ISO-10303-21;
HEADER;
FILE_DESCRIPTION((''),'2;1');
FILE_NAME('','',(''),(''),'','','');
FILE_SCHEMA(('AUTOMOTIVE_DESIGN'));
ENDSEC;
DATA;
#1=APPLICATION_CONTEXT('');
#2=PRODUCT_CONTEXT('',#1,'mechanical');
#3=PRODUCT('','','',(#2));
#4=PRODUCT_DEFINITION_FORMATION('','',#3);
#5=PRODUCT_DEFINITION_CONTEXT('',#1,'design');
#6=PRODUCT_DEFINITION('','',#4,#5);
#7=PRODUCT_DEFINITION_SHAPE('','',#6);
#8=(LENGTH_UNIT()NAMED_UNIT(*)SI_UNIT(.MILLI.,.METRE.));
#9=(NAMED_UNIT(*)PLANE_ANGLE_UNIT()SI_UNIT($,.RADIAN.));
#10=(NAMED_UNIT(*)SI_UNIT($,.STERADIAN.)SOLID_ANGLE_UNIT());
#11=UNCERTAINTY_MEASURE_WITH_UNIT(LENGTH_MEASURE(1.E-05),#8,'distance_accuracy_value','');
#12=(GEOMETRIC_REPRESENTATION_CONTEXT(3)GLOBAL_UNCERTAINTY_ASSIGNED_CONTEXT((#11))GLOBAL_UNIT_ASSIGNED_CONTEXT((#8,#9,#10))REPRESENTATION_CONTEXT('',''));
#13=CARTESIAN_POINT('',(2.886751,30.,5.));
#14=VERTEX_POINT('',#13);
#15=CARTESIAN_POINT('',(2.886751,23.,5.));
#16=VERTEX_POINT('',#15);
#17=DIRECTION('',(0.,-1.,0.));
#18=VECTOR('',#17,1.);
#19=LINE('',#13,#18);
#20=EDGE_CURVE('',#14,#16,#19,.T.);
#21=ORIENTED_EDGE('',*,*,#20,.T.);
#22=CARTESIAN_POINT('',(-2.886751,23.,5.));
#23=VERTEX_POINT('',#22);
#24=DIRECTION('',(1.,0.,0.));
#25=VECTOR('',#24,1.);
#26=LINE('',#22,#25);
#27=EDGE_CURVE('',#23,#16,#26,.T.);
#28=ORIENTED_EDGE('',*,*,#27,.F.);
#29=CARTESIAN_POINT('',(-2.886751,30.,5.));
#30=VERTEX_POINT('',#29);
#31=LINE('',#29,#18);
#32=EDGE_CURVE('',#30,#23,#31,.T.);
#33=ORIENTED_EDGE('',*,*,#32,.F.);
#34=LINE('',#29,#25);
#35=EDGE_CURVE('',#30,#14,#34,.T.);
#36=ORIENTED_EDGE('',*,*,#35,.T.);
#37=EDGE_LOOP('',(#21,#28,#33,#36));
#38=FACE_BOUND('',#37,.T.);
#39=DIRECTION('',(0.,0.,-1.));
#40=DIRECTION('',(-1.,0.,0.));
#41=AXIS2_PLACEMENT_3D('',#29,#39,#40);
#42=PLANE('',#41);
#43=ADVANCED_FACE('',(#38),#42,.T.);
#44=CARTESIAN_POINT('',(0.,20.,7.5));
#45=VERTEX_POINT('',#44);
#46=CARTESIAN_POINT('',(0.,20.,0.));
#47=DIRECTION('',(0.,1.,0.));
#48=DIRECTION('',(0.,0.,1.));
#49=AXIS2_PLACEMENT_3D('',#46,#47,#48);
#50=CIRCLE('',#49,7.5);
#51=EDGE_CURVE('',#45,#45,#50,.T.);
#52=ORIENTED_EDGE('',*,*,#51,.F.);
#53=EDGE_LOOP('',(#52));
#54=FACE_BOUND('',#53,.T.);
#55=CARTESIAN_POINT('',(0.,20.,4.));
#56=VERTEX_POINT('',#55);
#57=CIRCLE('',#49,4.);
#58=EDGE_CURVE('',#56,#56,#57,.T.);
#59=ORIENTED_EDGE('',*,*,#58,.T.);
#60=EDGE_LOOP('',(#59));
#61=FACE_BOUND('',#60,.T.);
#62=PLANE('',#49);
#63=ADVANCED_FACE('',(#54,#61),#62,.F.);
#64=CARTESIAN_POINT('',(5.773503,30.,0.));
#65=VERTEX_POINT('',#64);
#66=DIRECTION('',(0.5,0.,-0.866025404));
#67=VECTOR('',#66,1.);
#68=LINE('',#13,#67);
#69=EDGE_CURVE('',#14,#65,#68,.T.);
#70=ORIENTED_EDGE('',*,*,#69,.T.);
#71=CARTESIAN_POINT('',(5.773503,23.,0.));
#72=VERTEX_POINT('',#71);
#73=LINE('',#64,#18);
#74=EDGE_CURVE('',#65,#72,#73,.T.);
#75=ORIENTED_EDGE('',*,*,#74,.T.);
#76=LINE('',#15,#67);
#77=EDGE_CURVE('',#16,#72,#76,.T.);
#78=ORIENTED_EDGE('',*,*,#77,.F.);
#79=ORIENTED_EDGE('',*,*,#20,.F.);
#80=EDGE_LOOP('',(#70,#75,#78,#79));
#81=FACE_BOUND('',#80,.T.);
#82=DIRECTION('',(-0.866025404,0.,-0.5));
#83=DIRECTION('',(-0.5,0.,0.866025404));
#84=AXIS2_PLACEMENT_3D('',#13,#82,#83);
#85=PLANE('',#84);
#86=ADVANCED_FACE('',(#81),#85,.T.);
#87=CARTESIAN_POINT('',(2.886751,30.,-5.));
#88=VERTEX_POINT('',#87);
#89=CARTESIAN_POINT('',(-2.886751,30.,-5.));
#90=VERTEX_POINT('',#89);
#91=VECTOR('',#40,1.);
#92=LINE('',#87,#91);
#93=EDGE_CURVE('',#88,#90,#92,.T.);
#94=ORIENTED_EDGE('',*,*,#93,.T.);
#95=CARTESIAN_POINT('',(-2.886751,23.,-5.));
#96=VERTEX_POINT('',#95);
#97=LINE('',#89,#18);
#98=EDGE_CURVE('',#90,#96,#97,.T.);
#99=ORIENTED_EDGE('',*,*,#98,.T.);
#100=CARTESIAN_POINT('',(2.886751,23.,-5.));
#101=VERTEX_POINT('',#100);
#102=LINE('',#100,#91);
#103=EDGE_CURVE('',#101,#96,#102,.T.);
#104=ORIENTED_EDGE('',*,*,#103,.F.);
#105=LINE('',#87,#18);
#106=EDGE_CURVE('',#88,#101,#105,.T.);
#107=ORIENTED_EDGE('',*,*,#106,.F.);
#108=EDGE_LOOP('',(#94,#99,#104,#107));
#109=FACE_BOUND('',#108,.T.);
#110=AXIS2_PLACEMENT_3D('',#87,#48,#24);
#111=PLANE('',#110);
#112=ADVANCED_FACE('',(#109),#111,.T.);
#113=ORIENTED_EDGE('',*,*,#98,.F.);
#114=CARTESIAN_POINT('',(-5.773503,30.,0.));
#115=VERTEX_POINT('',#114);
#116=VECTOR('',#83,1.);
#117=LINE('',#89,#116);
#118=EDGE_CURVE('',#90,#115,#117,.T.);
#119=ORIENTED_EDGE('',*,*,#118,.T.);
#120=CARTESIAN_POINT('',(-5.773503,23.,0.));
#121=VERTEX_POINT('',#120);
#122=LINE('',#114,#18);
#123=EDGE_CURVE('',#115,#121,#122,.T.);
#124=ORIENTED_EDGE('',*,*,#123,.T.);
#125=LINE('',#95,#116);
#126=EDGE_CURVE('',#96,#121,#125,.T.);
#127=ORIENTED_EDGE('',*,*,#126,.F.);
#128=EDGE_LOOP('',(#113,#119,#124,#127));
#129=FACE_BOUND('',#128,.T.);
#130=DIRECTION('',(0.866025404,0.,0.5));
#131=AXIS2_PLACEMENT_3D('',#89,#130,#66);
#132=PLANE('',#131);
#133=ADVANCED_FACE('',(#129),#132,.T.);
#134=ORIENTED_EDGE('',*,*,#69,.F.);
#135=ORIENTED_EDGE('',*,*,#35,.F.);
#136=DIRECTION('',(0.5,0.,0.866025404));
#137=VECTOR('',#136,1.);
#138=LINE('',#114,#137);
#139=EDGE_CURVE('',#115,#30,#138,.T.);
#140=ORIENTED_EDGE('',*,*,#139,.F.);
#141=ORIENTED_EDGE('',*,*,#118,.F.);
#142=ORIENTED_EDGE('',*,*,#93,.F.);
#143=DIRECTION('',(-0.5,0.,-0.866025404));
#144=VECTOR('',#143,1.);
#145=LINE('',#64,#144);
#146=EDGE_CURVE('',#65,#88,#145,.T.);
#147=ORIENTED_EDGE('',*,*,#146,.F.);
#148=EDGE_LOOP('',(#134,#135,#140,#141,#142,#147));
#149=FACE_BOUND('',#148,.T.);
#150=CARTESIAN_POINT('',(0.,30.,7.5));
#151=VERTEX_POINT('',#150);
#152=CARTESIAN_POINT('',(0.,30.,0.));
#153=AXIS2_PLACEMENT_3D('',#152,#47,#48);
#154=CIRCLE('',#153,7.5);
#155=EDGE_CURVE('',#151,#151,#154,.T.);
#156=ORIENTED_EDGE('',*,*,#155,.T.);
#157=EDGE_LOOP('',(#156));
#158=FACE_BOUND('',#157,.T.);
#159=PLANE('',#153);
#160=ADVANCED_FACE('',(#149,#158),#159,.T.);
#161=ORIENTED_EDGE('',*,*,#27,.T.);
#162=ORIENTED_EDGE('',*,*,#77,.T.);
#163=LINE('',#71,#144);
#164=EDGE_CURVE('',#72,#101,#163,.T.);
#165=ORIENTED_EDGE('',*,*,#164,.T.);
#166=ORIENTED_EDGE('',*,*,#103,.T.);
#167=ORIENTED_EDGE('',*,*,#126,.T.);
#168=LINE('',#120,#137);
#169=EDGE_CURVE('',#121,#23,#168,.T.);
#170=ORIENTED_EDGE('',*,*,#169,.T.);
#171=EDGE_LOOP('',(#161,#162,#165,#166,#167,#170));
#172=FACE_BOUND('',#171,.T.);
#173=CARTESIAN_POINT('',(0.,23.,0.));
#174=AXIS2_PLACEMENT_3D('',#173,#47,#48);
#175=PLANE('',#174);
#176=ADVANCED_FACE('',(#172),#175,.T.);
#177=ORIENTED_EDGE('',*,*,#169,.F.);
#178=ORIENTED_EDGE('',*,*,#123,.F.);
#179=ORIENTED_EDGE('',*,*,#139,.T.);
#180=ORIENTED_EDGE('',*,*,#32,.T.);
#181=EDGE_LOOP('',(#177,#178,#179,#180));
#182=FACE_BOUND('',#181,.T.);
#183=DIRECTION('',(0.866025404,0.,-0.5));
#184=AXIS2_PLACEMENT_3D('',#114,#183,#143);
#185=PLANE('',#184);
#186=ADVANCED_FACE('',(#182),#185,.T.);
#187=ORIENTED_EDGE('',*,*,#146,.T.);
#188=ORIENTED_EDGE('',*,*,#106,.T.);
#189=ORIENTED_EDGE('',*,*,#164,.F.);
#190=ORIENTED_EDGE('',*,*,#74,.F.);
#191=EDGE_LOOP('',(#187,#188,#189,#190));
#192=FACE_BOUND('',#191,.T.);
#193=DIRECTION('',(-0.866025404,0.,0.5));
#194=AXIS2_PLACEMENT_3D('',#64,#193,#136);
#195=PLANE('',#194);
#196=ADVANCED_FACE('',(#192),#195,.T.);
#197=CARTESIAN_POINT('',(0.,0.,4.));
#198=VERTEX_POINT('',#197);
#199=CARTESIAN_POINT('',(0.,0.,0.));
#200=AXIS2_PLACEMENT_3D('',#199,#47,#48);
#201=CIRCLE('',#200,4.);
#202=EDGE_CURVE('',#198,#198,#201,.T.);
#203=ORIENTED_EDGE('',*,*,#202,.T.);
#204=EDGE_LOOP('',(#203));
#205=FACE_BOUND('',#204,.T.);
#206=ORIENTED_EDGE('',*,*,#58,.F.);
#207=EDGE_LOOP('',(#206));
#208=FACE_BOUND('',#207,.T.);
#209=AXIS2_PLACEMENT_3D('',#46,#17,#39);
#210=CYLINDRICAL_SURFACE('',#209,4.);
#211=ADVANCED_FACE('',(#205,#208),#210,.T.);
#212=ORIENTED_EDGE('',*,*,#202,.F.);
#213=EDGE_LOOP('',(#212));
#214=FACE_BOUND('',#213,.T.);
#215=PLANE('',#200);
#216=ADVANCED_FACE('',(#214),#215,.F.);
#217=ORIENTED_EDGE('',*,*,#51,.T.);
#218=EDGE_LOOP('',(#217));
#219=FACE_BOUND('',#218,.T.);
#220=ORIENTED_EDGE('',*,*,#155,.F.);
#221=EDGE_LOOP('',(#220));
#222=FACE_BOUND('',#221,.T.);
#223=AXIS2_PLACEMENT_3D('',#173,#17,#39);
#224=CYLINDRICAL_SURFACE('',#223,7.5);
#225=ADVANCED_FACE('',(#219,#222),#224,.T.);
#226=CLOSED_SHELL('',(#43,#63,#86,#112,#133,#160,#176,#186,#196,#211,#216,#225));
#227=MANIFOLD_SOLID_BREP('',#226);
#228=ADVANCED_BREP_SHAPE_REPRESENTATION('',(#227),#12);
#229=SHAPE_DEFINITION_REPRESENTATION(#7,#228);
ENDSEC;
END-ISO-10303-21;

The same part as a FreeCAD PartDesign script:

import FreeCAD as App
import Part
import Sketcher
Q = App.Units.Quantity


def add_polygon(sketch, points):
    """Adds a closed chain of lines whose ends are joined by coincident constraints."""
    first, n = sketch.GeometryCount, len(points)
    for a, b in zip(points, points[1:] + points[:1]):
        sketch.addGeometry(Part.LineSegment(App.Vector(*a, 0), App.Vector(*b, 0)), False)
    for i in range(n):
        sketch.addConstraint(Sketcher.Constraint("Coincident", first + i, 2, first + (i + 1) % n, 1))

doc = App.newDocument("Part")
body = doc.addObject("PartDesign::Body", "Body")

# Sketch on XZ plane
sketch1 = doc.addObject("Sketcher::SketchObject", "Sketch")
body.addObject(sketch1)
sketch1.AttachmentSupport = (doc.XZ_Plane, [""])
sketch1.MapMode = "FlatFace"
sketch1.addGeometry(Part.Circle(App.Vector(0, 0, 0), App.Vector(0, 0, 1), 4), False)
sketch1.addConstraint(Sketcher.Constraint("Coincident", 0, 3, -1, 1))
sketch1.addConstraint(Sketcher.Constraint("Diameter", 0, Q("8 mm")))
pad1 = doc.addObject("PartDesign::Pad", "Pad")
body.addObject(pad1)
pad1.Profile = sketch1
pad1.Length = 20
pad1.Reversed = True

# Sketch on XZ plane
sketch2 = doc.addObject("Sketcher::SketchObject", "Sketch001")
body.addObject(sketch2)
sketch2.AttachmentSupport = (doc.XZ_Plane, [""])
sketch2.MapMode = "FlatFace"
sketch2.AttachmentOffset = App.Placement(App.Vector(0, 0, -20), App.Rotation())
sketch2.addGeometry(Part.Circle(App.Vector(0, 0, 0), App.Vector(0, 0, 1), 8), False)
sketch2.addConstraint(Sketcher.Constraint("Coincident", 0, 3, -1, 1))
sketch2.addConstraint(Sketcher.Constraint("Diameter", 0, Q("15 mm")))
pad2 = doc.addObject("PartDesign::Pad", "Pad001")
body.addObject(pad2)
pad2.Profile = sketch2
pad2.Length = 3
pad2.Reversed = True

# Sketch on XZ plane
sketch3 = doc.addObject("Sketcher::SketchObject", "Sketch002")
body.addObject(sketch3)
sketch3.AttachmentSupport = (doc.XZ_Plane, [""])
sketch3.MapMode = "FlatFace"
sketch3.AttachmentOffset = App.Placement(App.Vector(0, 0, -23), App.Rotation())
sketch3.addGeometry(Part.Circle(App.Vector(0, 0, 0), App.Vector(0, 0, 1), 8), False)  # 0
add_polygon(sketch3, [(3, -5), (6, 0), (3, 5), (-3, 5), (-6, 0), (-3, -5)])  # lines 1-6
sketch3.addConstraint(Sketcher.Constraint("Horizontal", 3))
sketch3.addConstraint(Sketcher.Constraint("Horizontal", 6))
sketch3.addConstraint(Sketcher.Constraint("Coincident", 0, 3, -1, 1))
sketch3.addConstraint(Sketcher.Constraint("Symmetric", 1, 2, 4, 2, -1, 1))
sketch3.addConstraint(Sketcher.Constraint("Symmetric", 2, 2, 5, 2, -1, 1))
sketch3.addConstraint(Sketcher.Constraint("PointOnObject", 1, 2, -1))
sketch3.addConstraint(Sketcher.Constraint("Parallel", 1, 4))
sketch3.addConstraint(Sketcher.Constraint("Vertical", 3, 2, 5, 2))
sketch3.addConstraint(Sketcher.Constraint("Diameter", 0, Q("15 mm")))
sketch3.addConstraint(Sketcher.Constraint("Angle", 1, Q("60 deg")))
sketch3.addConstraint(Sketcher.Constraint("DistanceY", -1, 1, 2, 2, Q("5 mm")))
sketch3.addConstraint(Sketcher.Constraint("DistanceX", 3, 2, 3, 1, Q("5.773503 mm")))
pad3 = doc.addObject("PartDesign::Pad", "Pad002")
body.addObject(pad3)
pad3.Profile = sketch3
pad3.Length = 7
pad3.Reversed = True

doc.recompute()
